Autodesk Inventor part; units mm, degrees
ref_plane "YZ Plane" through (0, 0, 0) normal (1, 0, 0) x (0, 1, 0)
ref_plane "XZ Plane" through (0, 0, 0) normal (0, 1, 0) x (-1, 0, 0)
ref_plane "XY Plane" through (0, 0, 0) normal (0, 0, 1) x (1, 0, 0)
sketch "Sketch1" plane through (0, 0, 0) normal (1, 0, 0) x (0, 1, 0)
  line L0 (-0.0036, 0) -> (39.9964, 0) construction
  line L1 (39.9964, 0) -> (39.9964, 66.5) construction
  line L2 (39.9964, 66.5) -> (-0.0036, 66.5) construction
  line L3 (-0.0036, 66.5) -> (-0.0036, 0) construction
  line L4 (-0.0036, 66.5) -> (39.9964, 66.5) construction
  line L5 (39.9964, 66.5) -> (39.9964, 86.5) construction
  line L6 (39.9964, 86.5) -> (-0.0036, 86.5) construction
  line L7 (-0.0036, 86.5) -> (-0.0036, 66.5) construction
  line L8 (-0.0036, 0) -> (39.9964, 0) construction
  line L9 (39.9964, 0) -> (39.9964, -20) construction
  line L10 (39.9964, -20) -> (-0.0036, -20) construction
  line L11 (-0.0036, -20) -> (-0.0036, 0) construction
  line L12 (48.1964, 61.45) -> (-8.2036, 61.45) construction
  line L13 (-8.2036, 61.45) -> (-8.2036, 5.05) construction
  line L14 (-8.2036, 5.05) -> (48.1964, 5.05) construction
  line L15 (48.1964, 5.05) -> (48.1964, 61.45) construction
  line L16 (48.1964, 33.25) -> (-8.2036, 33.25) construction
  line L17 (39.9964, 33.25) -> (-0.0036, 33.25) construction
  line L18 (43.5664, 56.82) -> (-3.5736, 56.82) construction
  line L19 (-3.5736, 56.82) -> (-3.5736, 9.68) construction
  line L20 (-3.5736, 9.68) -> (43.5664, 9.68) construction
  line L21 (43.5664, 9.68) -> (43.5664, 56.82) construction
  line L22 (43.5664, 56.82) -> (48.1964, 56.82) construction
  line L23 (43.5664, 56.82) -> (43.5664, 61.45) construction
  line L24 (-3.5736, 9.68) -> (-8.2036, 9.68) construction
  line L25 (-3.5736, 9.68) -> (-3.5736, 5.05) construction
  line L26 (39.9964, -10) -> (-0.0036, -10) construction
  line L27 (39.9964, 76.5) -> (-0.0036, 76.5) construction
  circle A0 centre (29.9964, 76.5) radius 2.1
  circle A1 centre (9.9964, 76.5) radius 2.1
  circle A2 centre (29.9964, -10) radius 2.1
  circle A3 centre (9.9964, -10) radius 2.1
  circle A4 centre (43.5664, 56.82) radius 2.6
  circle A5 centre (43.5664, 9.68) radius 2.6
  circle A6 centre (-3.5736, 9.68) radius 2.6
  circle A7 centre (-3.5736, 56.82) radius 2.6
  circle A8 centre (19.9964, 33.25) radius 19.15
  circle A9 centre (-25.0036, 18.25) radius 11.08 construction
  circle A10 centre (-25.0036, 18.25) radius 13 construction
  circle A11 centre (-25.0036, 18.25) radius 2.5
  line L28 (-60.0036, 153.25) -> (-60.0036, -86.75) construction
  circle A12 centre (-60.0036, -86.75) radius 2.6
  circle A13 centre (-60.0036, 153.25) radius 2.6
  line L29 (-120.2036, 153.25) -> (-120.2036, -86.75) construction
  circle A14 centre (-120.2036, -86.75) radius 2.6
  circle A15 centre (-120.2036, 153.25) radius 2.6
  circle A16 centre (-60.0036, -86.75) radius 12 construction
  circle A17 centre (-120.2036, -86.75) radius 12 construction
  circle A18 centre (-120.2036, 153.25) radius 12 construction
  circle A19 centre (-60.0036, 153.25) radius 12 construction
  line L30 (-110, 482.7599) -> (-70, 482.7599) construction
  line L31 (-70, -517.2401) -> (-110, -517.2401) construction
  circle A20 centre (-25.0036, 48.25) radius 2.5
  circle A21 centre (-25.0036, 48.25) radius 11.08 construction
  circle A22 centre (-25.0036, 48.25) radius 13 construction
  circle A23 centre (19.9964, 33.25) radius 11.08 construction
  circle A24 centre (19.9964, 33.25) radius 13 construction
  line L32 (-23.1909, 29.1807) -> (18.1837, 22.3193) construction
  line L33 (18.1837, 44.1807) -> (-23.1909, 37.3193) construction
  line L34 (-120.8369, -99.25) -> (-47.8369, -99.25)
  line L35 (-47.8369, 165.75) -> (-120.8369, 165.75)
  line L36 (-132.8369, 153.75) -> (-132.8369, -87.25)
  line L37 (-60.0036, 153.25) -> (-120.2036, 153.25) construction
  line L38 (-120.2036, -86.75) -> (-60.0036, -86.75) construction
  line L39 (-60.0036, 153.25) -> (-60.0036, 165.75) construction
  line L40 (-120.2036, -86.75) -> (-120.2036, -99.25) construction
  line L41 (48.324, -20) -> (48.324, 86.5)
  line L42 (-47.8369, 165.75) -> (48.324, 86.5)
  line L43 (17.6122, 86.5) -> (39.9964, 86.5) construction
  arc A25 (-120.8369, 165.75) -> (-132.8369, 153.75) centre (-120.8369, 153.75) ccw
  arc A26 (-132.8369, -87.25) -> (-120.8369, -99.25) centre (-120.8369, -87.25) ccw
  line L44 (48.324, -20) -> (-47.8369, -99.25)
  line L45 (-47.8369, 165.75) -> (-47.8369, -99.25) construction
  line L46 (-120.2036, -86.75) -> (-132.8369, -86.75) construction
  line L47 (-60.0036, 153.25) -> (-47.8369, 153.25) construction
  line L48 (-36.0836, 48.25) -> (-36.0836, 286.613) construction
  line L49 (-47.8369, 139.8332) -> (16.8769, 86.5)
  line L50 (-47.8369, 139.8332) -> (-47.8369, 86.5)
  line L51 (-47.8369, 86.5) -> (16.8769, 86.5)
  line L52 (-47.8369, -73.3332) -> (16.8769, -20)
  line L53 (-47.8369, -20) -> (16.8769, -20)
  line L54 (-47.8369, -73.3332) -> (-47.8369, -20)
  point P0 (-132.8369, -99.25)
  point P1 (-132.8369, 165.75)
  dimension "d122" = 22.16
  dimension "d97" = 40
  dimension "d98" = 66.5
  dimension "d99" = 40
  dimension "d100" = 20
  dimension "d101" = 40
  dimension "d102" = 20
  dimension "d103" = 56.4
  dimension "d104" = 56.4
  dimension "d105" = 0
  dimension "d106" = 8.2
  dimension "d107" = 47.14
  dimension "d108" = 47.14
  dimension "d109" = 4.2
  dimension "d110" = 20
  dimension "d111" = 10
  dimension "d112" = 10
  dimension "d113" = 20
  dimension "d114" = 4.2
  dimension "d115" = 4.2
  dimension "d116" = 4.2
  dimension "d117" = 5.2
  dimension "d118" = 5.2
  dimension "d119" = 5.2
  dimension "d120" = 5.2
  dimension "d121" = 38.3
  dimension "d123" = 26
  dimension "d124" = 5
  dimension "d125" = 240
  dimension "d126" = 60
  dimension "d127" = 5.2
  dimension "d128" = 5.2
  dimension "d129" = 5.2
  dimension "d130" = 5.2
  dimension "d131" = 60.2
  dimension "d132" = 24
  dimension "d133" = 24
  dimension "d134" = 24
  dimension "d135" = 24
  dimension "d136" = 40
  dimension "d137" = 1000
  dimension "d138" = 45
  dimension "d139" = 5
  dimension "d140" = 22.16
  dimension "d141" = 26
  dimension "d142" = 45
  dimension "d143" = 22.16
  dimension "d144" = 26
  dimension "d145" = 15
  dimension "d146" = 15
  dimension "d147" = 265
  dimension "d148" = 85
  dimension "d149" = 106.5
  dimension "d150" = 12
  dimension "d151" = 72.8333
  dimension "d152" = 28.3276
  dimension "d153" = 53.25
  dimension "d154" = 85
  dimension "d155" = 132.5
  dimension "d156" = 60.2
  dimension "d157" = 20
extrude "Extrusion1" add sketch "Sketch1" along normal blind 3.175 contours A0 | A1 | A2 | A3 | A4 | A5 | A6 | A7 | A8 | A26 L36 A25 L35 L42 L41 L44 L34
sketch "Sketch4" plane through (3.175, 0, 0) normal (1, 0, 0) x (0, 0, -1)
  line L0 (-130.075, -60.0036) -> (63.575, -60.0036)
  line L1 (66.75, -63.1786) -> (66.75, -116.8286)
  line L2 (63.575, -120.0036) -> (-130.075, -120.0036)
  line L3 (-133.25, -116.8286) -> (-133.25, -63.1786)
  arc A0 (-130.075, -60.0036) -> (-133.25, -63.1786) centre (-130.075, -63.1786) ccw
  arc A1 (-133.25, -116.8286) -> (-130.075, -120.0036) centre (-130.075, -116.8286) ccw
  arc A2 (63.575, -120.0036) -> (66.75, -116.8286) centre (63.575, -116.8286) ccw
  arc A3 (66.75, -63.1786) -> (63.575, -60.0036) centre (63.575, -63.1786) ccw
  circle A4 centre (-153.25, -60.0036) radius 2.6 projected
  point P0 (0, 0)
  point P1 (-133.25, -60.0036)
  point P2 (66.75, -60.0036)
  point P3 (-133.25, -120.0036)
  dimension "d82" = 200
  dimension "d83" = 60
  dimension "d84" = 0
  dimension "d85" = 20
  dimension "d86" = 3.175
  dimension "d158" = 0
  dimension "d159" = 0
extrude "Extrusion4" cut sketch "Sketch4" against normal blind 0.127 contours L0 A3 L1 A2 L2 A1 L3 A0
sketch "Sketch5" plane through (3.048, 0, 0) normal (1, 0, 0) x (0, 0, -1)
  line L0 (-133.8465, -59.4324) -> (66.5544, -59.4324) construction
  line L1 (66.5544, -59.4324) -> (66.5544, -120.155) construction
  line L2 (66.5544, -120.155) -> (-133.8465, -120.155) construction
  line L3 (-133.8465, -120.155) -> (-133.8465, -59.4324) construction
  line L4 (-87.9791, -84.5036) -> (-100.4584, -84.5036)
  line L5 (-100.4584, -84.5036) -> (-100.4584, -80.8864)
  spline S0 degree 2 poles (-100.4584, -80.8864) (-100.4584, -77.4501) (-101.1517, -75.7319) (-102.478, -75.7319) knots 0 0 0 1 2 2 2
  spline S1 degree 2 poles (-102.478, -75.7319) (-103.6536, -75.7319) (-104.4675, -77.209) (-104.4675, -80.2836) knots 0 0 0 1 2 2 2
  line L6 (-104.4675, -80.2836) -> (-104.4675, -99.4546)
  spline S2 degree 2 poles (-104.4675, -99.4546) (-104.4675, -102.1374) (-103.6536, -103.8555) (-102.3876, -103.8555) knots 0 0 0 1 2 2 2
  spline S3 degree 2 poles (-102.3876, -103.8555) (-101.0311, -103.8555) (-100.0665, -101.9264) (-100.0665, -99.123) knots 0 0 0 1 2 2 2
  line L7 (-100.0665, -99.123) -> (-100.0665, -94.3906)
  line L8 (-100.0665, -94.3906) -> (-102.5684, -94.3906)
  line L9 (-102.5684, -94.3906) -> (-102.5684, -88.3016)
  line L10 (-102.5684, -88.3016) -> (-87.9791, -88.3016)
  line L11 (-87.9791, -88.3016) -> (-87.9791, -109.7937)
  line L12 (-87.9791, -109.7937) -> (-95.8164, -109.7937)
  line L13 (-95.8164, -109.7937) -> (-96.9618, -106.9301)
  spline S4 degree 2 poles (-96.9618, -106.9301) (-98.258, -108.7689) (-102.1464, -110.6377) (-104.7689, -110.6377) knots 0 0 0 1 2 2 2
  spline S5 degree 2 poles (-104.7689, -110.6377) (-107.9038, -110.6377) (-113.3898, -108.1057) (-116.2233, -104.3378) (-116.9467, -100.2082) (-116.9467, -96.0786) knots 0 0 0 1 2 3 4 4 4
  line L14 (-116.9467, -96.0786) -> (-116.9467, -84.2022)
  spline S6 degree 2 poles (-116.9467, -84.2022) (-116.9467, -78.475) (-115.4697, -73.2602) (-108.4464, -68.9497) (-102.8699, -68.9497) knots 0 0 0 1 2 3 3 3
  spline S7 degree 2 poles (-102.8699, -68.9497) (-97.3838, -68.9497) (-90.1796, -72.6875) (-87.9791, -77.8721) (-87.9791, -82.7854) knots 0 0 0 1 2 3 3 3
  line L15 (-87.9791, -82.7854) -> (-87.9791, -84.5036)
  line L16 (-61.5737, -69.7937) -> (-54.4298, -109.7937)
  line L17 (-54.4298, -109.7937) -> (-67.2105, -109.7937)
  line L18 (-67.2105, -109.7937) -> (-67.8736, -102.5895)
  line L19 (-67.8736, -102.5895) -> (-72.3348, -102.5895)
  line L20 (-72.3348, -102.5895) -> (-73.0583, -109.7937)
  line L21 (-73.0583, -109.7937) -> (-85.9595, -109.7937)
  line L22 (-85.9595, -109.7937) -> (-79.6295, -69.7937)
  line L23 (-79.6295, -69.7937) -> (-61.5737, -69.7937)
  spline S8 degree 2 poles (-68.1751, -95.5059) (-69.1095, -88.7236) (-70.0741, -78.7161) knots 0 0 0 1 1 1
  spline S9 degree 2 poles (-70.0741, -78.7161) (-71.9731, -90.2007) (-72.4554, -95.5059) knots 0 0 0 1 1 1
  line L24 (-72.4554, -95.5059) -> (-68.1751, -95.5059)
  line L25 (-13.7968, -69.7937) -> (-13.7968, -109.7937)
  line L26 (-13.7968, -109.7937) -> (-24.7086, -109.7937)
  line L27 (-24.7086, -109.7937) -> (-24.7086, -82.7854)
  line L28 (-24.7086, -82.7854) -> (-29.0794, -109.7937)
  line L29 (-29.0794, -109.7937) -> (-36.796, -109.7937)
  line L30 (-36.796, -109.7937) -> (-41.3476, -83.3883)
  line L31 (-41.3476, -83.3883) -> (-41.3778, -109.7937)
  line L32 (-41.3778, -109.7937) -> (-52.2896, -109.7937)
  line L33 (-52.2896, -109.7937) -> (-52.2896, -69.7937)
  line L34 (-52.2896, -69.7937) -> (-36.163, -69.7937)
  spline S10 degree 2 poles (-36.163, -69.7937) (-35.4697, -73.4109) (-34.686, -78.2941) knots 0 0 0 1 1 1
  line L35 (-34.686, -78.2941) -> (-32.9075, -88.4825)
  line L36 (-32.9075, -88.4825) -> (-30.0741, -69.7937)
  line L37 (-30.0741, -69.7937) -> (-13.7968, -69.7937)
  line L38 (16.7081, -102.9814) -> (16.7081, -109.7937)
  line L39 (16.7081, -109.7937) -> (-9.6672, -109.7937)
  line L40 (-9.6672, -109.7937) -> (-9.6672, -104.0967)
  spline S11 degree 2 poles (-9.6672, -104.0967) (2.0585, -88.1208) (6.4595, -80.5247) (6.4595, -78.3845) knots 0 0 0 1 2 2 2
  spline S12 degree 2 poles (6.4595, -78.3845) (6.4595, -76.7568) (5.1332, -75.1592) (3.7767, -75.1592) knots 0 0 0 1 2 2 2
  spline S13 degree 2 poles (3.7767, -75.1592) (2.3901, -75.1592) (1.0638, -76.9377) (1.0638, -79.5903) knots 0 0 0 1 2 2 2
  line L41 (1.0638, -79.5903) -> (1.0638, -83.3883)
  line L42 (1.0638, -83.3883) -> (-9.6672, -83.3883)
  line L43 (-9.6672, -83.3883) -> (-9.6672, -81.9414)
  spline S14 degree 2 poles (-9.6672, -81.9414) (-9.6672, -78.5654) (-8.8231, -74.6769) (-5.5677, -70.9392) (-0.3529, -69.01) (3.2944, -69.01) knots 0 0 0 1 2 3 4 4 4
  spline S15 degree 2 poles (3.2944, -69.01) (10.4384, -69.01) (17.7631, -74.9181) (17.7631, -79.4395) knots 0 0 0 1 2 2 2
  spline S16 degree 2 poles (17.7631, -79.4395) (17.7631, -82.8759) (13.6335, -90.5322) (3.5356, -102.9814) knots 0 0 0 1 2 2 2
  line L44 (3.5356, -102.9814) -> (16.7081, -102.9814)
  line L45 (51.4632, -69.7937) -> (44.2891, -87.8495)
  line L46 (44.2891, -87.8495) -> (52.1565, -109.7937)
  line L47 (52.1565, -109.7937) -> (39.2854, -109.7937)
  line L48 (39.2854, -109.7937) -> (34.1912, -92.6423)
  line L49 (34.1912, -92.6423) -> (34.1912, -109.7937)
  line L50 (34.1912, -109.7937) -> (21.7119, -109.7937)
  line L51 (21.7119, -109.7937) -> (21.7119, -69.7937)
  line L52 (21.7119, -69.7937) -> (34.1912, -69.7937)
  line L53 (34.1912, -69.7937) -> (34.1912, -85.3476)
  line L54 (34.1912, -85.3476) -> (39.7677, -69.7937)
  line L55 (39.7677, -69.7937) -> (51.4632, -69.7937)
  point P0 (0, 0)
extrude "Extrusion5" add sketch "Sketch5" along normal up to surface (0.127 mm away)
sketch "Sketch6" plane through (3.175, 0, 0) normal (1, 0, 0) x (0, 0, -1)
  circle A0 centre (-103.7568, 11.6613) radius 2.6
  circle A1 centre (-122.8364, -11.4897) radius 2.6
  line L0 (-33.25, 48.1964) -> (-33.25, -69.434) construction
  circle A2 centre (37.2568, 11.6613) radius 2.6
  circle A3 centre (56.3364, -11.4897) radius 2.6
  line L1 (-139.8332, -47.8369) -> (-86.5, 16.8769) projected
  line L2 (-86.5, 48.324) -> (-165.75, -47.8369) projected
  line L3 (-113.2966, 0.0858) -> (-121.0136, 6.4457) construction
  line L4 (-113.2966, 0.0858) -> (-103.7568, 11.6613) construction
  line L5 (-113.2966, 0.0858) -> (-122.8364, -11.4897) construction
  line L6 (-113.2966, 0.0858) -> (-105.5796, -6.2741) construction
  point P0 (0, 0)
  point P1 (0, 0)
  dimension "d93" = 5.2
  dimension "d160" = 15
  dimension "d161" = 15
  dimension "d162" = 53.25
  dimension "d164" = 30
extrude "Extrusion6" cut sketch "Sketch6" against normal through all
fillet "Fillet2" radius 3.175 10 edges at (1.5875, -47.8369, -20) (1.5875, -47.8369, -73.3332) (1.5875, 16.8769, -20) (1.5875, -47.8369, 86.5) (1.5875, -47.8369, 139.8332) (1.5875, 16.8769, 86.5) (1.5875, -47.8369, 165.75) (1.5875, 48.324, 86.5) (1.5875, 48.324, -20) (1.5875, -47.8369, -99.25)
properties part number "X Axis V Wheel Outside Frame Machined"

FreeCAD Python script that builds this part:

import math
import FreeCAD as App
import Part
import Sketcher
Q = App.Units.Quantity


def edges_at(feature, points):
    """Names of the edges that pass closest to the given points."""
    edges = feature.Shape.Edges
    near = lambda p: min(range(len(edges)), key=lambda i: edges[i].distToShape(Part.Vertex(*p))[0])
    return sorted({f"Edge{near(p) + 1}" for p in points})

doc = App.newDocument("Part")
body = doc.addObject("PartDesign::Body", "Body")

# Sketch on YZ plane
sketch1 = body.newObject("Sketcher::SketchObject", "Sketch")
sketch1.AttachmentSupport = (doc.getObject("YZ_Plane"), [""])
sketch1.MapMode = "FlatFace"
sketch1.addGeometry(Part.ArcOfCircle(Part.Circle(App.Vector(-120.8369, -87.25, 0), App.Vector(0, 0, 1), 12), math.radians(180), math.radians(270)), False)
sketch1.addGeometry(Part.LineSegment(App.Vector(-120.8369, -99.25, 0), App.Vector(-47.8369, -99.25, 0)), False)
sketch1.addGeometry(Part.LineSegment(App.Vector(-47.8369, -99.25, 0), App.Vector(48.324, -20, 0)), False)
sketch1.addGeometry(Part.LineSegment(App.Vector(48.324, -20, 0), App.Vector(48.324, 86.5, 0)), False)
sketch1.addGeometry(Part.LineSegment(App.Vector(48.324, 86.5, 0), App.Vector(-47.8369, 165.75, 0)), False)
sketch1.addGeometry(Part.LineSegment(App.Vector(-47.8369, 165.75, 0), App.Vector(-120.8369, 165.75, 0)), False)
sketch1.addGeometry(Part.ArcOfCircle(Part.Circle(App.Vector(-120.8369, 153.75, 0), App.Vector(0, 0, 1), 12), math.radians(90), math.radians(180)), False)
sketch1.addGeometry(Part.LineSegment(App.Vector(-132.8369, 153.75, 0), App.Vector(-132.8369, -87.25, 0)), False)
sketch1.addGeometry(Part.Circle(App.Vector(-120.2036, -86.75, 0), App.Vector(0, 0, 1), 2.6), False)
sketch1.addGeometry(Part.Circle(App.Vector(-60.0036, -86.75, 0), App.Vector(0, 0, 1), 2.6), False)
sketch1.addGeometry(Part.LineSegment(App.Vector(16.8769, -20, 0), App.Vector(-47.8369, -73.3332, 0)), False)
sketch1.addGeometry(Part.LineSegment(App.Vector(-47.8369, -73.3332, 0), App.Vector(-47.8369, -20, 0)), False)
sketch1.addGeometry(Part.LineSegment(App.Vector(-47.8369, -20, 0), App.Vector(16.8769, -20, 0)), False)
sketch1.addGeometry(Part.Circle(App.Vector(-25.0036, 18.25, 0), App.Vector(0, 0, 1), 2.5), False)
sketch1.addGeometry(Part.Circle(App.Vector(-120.2036, 153.25, 0), App.Vector(0, 0, 1), 2.6), False)
sketch1.addGeometry(Part.Circle(App.Vector(-60.0036, 153.25, 0), App.Vector(0, 0, 1), 2.6), False)
sketch1.addGeometry(Part.Circle(App.Vector(-25.0036, 48.25, 0), App.Vector(0, 0, 1), 2.5), False)
sketch1.addGeometry(Part.LineSegment(App.Vector(-47.8369, 139.8332, 0), App.Vector(16.8769, 86.5, 0)), False)
sketch1.addGeometry(Part.LineSegment(App.Vector(16.8769, 86.5, 0), App.Vector(-47.8369, 86.5, 0)), False)
sketch1.addGeometry(Part.LineSegment(App.Vector(-47.8369, 86.5, 0), App.Vector(-47.8369, 139.8332, 0)), False)
sketch1.addConstraint(Sketcher.Constraint("Tangent", 0, 2, 1, 1))
sketch1.addConstraint(Sketcher.Constraint("Coincident", 1, 2, 2, 1))
sketch1.addConstraint(Sketcher.Constraint("Coincident", 2, 2, 3, 1))
sketch1.addConstraint(Sketcher.Constraint("Coincident", 3, 2, 4, 1))
sketch1.addConstraint(Sketcher.Constraint("Coincident", 4, 2, 5, 1))
sketch1.addConstraint(Sketcher.Constraint("Tangent", 5, 2, 6, 1))
sketch1.addConstraint(Sketcher.Constraint("Tangent", 6, 2, 7, 1))
sketch1.addConstraint(Sketcher.Constraint("Tangent", 7, 2, 0, 1))
sketch1.addConstraint(Sketcher.Constraint("Coincident", 10, 2, 11, 1))
sketch1.addConstraint(Sketcher.Constraint("Coincident", 11, 2, 12, 1))
sketch1.addConstraint(Sketcher.Constraint("Coincident", 12, 2, 10, 1))
sketch1.addConstraint(Sketcher.Constraint("Coincident", 17, 2, 18, 1))
sketch1.addConstraint(Sketcher.Constraint("Coincident", 18, 2, 19, 1))
sketch1.addConstraint(Sketcher.Constraint("Coincident", 19, 2, 17, 1))
sketch1.addConstraint(Sketcher.Constraint("Horizontal", 1))
sketch1.addConstraint(Sketcher.Constraint("Vertical", 3))
sketch1.addConstraint(Sketcher.Constraint("Horizontal", 5))
sketch1.addConstraint(Sketcher.Constraint("Vertical", 7))
sketch1.addConstraint(Sketcher.Constraint("Vertical", 11))
sketch1.addConstraint(Sketcher.Constraint("Horizontal", 12))
sketch1.addConstraint(Sketcher.Constraint("Horizontal", 18))
sketch1.addConstraint(Sketcher.Constraint("Vertical", 19))
sketch1.addConstraint(Sketcher.Constraint("Equal", 0, 6))
sketch1.addConstraint(Sketcher.Constraint("Equal", 8, 9))
sketch1.addConstraint(Sketcher.Constraint("Equal", 9, 14))
sketch1.addConstraint(Sketcher.Constraint("Equal", 14, 15))
sketch1.addConstraint(Sketcher.Constraint("Equal", 13, 16))
sketch1.addConstraint(Sketcher.Constraint("Parallel", 2, 10))
sketch1.addConstraint(Sketcher.Constraint("Parallel", 4, 17))
sketch1.addConstraint(Sketcher.Constraint("Horizontal", 8, 3, 9, 3))
sketch1.addConstraint(Sketcher.Constraint("Horizontal", 14, 3, 15, 3))
sketch1.addConstraint(Sketcher.Constraint("Horizontal", 2, 2, 11, 2))
sketch1.addConstraint(Sketcher.Constraint("Horizontal", 3, 2, 17, 2))
sketch1.addConstraint(Sketcher.Constraint("Vertical", 8, 3, 14, 3))
sketch1.addConstraint(Sketcher.Constraint("Vertical", 9, 3, 15, 3))
sketch1.addConstraint(Sketcher.Constraint("Vertical", 13, 3, 16, 3))
sketch1.addConstraint(Sketcher.Constraint("Vertical", 1, 2, 4, 2))
sketch1.addConstraint(Sketcher.Constraint("Vertical", 4, 2, 10, 2))
sketch1.addConstraint(Sketcher.Constraint("Vertical", 12, 2, 17, 2))
sketch1.addConstraint(Sketcher.Constraint("Vertical", 11, 2, 18, 2))
sketch1.addConstraint(Sketcher.Constraint("Equal", 11, 19))
sketch1.addConstraint(Sketcher.Constraint("Diameter", 13, Q("5 mm")))
sketch1.addConstraint(Sketcher.Constraint("Radius", 0, Q("12 mm")))
sketch1.addConstraint(Sketcher.Constraint("Diameter", 8, Q("5.2 mm")))
sketch1.addConstraint(Sketcher.Constraint("DistanceY", 3, 1, 3, 2, Q("106.5 mm")))
sketch1.addConstraint(Sketcher.Constraint("DistanceY", 2, 2, -1, 1, Q("20 mm")))
sketch1.addConstraint(Sketcher.Constraint("DistanceY", 8, 3, 14, 3, Q("240 mm")))
sketch1.addConstraint(Sketcher.Constraint("DistanceX", 6, 2, 4, 2, Q("85 mm")))
sketch1.addConstraint(Sketcher.Constraint("DistanceX", 8, 3, 9, 3, Q("60.2 mm")))
sketch1.addConstraint(Sketcher.Constraint("DistanceY", 7, 2, 7, 1, Q("241 mm")))
sketch1.addConstraint(Sketcher.Constraint("DistanceX", 9, 3, 13, 3, Q("35 mm")))
sketch1.addConstraint(Sketcher.Constraint("DistanceY", 9, 3, 13, 3, Q("105 mm")))
sketch1.addConstraint(Sketcher.Constraint("DistanceY", 13, 3, 16, 3, Q("30 mm")))
sketch1.addConstraint(Sketcher.Constraint("DistanceY", 0, 3, 8, 3, Q("0.5 mm")))
sketch1.addConstraint(Sketcher.Constraint("DistanceX", 6, 2, 15, 3, Q("72.8333 mm")))
sketch1.addConstraint(Sketcher.Constraint("DistanceX", 12, 1, 12, 2, Q("64.7138 mm")))
sketch1.addConstraint(Sketcher.Constraint("DistanceY", 11, 1, 11, 2, Q("53.3332 mm")))
sketch1.addConstraint(Sketcher.Constraint("DistanceX", 0, 3, -1, 1, Q("120.837 mm")))
pad1 = body.newObject("PartDesign::Pad", "Pad")
pad1.Profile = sketch1
pad1.Length = 3.175

# Sketch on YZ plane
sketch2 = body.newObject("Sketcher::SketchObject", "Sketch001")
sketch2.AttachmentSupport = (doc.getObject("YZ_Plane"), [""])
sketch2.MapMode = "FlatFace"
sketch2.AttachmentOffset = App.Placement(App.Vector(0, 0, 3.175), App.Rotation())
sketch2.addGeometry(Part.LineSegment(App.Vector(-60.0036, -63.575, 0), App.Vector(-60.0036, 130.075, 0)), False)
sketch2.addGeometry(Part.ArcOfCircle(Part.Circle(App.Vector(-63.1786, 130.075, 0), App.Vector(0, 0, 1), 3.175), math.radians(0), math.radians(90)), False)
sketch2.addGeometry(Part.LineSegment(App.Vector(-63.1786, 133.25, 0), App.Vector(-116.8286, 133.25, 0)), False)
sketch2.addGeometry(Part.ArcOfCircle(Part.Circle(App.Vector(-116.8286, 130.075, 0), App.Vector(0, 0, 1), 3.175), math.radians(90), math.radians(180)), False)
sketch2.addGeometry(Part.LineSegment(App.Vector(-120.0036, 130.075, 0), App.Vector(-120.0036, -63.575, 0)), False)
sketch2.addGeometry(Part.ArcOfCircle(Part.Circle(App.Vector(-116.8286, -63.575, 0), App.Vector(0, 0, 1), 3.175), math.radians(180), math.radians(270)), False)
sketch2.addGeometry(Part.LineSegment(App.Vector(-116.8286, -66.75, 0), App.Vector(-63.1786, -66.75, 0)), False)
sketch2.addGeometry(Part.ArcOfCircle(Part.Circle(App.Vector(-63.1786, -63.575, 0), App.Vector(0, 0, 1), 3.175), math.radians(-90), math.radians(0)), False)
sketch2.addConstraint(Sketcher.Constraint("Tangent", 0, 2, 1, 1))
sketch2.addConstraint(Sketcher.Constraint("Tangent", 1, 2, 2, 1))
sketch2.addConstraint(Sketcher.Constraint("Tangent", 2, 2, 3, 1))
sketch2.addConstraint(Sketcher.Constraint("Tangent", 3, 2, 4, 1))
sketch2.addConstraint(Sketcher.Constraint("Tangent", 4, 2, 5, 1))
sketch2.addConstraint(Sketcher.Constraint("Tangent", 5, 2, 6, 1))
sketch2.addConstraint(Sketcher.Constraint("Tangent", 6, 2, 7, 1))
sketch2.addConstraint(Sketcher.Constraint("Tangent", 7, 2, 0, 1))
sketch2.addConstraint(Sketcher.Constraint("Vertical", 0))
sketch2.addConstraint(Sketcher.Constraint("Horizontal", 2))
sketch2.addConstraint(Sketcher.Constraint("Vertical", 4))
sketch2.addConstraint(Sketcher.Constraint("Horizontal", 6))
sketch2.addConstraint(Sketcher.Constraint("Equal", 1, 3))
sketch2.addConstraint(Sketcher.Constraint("Equal", 3, 5))
sketch2.addConstraint(Sketcher.Constraint("Equal", 5, 7))
sketch2.addConstraint(Sketcher.Constraint("Radius", 1, Q("3.175 mm")))
sketch2.addConstraint(Sketcher.Constraint("DistanceX", 3, 2, 0, 2, Q("60 mm")))
sketch2.addConstraint(Sketcher.Constraint("DistanceY", 0, 1, 0, 2, Q("193.65 mm")))
sketch2.addConstraint(Sketcher.Constraint("DistanceY", -1, 1, 1, 2, Q("133.25 mm")))
sketch2.addConstraint(Sketcher.Constraint("DistanceX", 1, 3, -1, 1, Q("63.1786 mm")))
pocket1 = body.newObject("PartDesign::Pocket", "Pocket")
pocket1.Profile = sketch2
pocket1.Length = 0.127

# Sketch on YZ plane
sketch3 = body.newObject("Sketcher::SketchObject", "Sketch002")
sketch3.AttachmentSupport = (doc.getObject("YZ_Plane"), [""])
sketch3.MapMode = "FlatFace"
sketch3.AttachmentOffset = App.Placement(App.Vector(0, 0, 3.048), App.Rotation())
sketch3.addGeometry(Part.LineSegment(App.Vector(-84.5036, 100.4584, 0), App.Vector(-84.5036, 87.9791, 0)), False)
sketch3.addGeometry(Part.LineSegment(App.Vector(-84.5036, 87.9791, 0), App.Vector(-82.7854, 87.9791, 0)), False)
sketch3.addGeometry(Part.BSplineCurve([App.Vector(-68.9497, 102.8699, 0), App.Vector(-68.9497, 97.3838, 0), App.Vector(-72.6875, 90.1796, 0), App.Vector(-77.8721, 87.9791, 0), App.Vector(-82.7854, 87.9791, 0)], [3, 1, 1, 3], [0, 1, 2, 3], False, 2, [1, 1, 1, 1, 1], False), False)
sketch3.addGeometry(Part.BSplineCurve([App.Vector(-84.2022, 116.9467, 0), App.Vector(-78.475, 116.9467, 0), App.Vector(-73.2602, 115.4697, 0), App.Vector(-68.9497, 108.4464, 0), App.Vector(-68.9497, 102.8699, 0)], [3, 1, 1, 3], [0, 1, 2, 3], False, 2, [1, 1, 1, 1, 1], False), False)
sketch3.addGeometry(Part.LineSegment(App.Vector(-84.2022, 116.9467, 0), App.Vector(-96.0786, 116.9467, 0)), False)
sketch3.addGeometry(Part.BSplineCurve([App.Vector(-110.6377, 104.7689, 0), App.Vector(-110.6377, 107.9038, 0), App.Vector(-108.1057, 113.3898, 0), App.Vector(-104.3378, 116.2233, 0), App.Vector(-100.2082, 116.9467, 0), App.Vector(-96.0786, 116.9467, 0)], [3, 1, 1, 1, 3], [0, 1, 2, 3, 4], False, 2, [1, 1, 1, 1, 1, 1], False), False)
sketch3.addGeometry(Part.BSplineCurve([App.Vector(-106.9301, 96.9618, 0), App.Vector(-108.7689, 98.258, 0), App.Vector(-110.6377, 102.1464, 0), App.Vector(-110.6377, 104.7689, 0)], [3, 1, 3], [0, 1, 2], False, 2, [1, 1, 1, 1], False), False)
sketch3.addGeometry(Part.LineSegment(App.Vector(-106.9301, 96.9618, 0), App.Vector(-109.7937, 95.8164, 0)), False)
sketch3.addGeometry(Part.LineSegment(App.Vector(-109.7937, 95.8164, 0), App.Vector(-109.7937, 87.9791, 0)), False)
sketch3.addGeometry(Part.LineSegment(App.Vector(-109.7937, 87.9791, 0), App.Vector(-88.3016, 87.9791, 0)), False)
sketch3.addGeometry(Part.LineSegment(App.Vector(-88.3016, 87.9791, 0), App.Vector(-88.3016, 102.5684, 0)), False)
sketch3.addGeometry(Part.LineSegment(App.Vector(-88.3016, 102.5684, 0), App.Vector(-94.3906, 102.5684, 0)), False)
sketch3.addGeometry(Part.LineSegment(App.Vector(-94.3906, 102.5684, 0), App.Vector(-94.3906, 100.0665, 0)), False)
sketch3.addGeometry(Part.LineSegment(App.Vector(-94.3906, 100.0665, 0), App.Vector(-99.123, 100.0665, 0)), False)
sketch3.addGeometry(Part.BSplineCurve([App.Vector(-103.8555, 102.3876, 0), App.Vector(-103.8555, 101.0311, 0), App.Vector(-101.9264, 100.0665, 0), App.Vector(-99.123, 100.0665, 0)], [3, 1, 3], [0, 1, 2], False, 2, [1, 1, 1, 1], False), False)
sketch3.addGeometry(Part.BSplineCurve([App.Vector(-99.4546, 104.4675, 0), App.Vector(-102.1374, 104.4675, 0), App.Vector(-103.8555, 103.6536, 0), App.Vector(-103.8555, 102.3876, 0)], [3, 1, 3], [0, 1, 2], False, 2, [1, 1, 1, 1], False), False)
sketch3.addGeometry(Part.LineSegment(App.Vector(-99.4546, 104.4675, 0), App.Vector(-80.2836, 104.4675, 0)), False)
sketch3.addGeometry(Part.BSplineCurve([App.Vector(-75.7319, 102.478, 0), App.Vector(-75.7319, 103.6536, 0), App.Vector(-77.209, 104.4675, 0), App.Vector(-80.2836, 104.4675, 0)], [3, 1, 3], [0, 1, 2], False, 2, [1, 1, 1, 1], False), False)
sketch3.addGeometry(Part.BSplineCurve([App.Vector(-80.8864, 100.4584, 0), App.Vector(-77.4501, 100.4584, 0), App.Vector(-75.7319, 101.1517, 0), App.Vector(-75.7319, 102.478, 0)], [3, 1, 3], [0, 1, 2], False, 2, [1, 1, 1, 1], False), False)
sketch3.addGeometry(Part.LineSegment(App.Vector(-80.8864, 100.4584, 0), App.Vector(-84.5036, 100.4584, 0)), False)
sketch3.addGeometry(Part.LineSegment(App.Vector(-109.7937, 54.4298, 0), App.Vector(-69.7937, 61.5737, 0)), False)
sketch3.addGeometry(Part.LineSegment(App.Vector(-69.7937, 61.5737, 0), App.Vector(-69.7937, 79.6295, 0)), False)
sketch3.addGeometry(Part.LineSegment(App.Vector(-69.7937, 79.6295, 0), App.Vector(-109.7937, 85.9595, 0)), False)
sketch3.addGeometry(Part.LineSegment(App.Vector(-109.7937, 85.9595, 0), App.Vector(-109.7937, 73.0583, 0)), False)
sketch3.addGeometry(Part.LineSegment(App.Vector(-109.7937, 73.0583, 0), App.Vector(-102.5895, 72.3348, 0)), False)
sketch3.addGeometry(Part.LineSegment(App.Vector(-102.5895, 72.3348, 0), App.Vector(-102.5895, 67.8736, 0)), False)
sketch3.addGeometry(Part.LineSegment(App.Vector(-102.5895, 67.8736, 0), App.Vector(-109.7937, 67.2105, 0)), False)
sketch3.addGeometry(Part.LineSegment(App.Vector(-109.7937, 67.2105, 0), App.Vector(-109.7937, 54.4298, 0)), False)
sketch3.addGeometry(Part.BSplineCurve([App.Vector(-95.5059, 68.1751, 0), App.Vector(-88.7236, 69.1095, 0), App.Vector(-78.7161, 70.0741, 0)], [3, 3], [0, 1], False, 2, [1, 1, 1], False), False)
sketch3.addGeometry(Part.LineSegment(App.Vector(-95.5059, 68.1751, 0), App.Vector(-95.5059, 72.4554, 0)), False)
sketch3.addGeometry(Part.BSplineCurve([App.Vector(-78.7161, 70.0741, 0), App.Vector(-90.2007, 71.9731, 0), App.Vector(-95.5059, 72.4554, 0)], [3, 3], [0, 1], False, 2, [1, 1, 1], False), False)
sketch3.addGeometry(Part.LineSegment(App.Vector(-109.7937, 13.7968, 0), App.Vector(-69.7937, 13.7968, 0)), False)
sketch3.addGeometry(Part.LineSegment(App.Vector(-69.7937, 13.7968, 0), App.Vector(-69.7937, 30.0741, 0)), False)
sketch3.addGeometry(Part.LineSegment(App.Vector(-69.7937, 30.0741, 0), App.Vector(-88.4825, 32.9075, 0)), False)
sketch3.addGeometry(Part.LineSegment(App.Vector(-88.4825, 32.9075, 0), App.Vector(-78.2941, 34.686, 0)), False)
sketch3.addGeometry(Part.BSplineCurve([App.Vector(-69.7937, 36.163, 0), App.Vector(-73.4109, 35.4697, 0), App.Vector(-78.2941, 34.686, 0)], [3, 3], [0, 1], False, 2, [1, 1, 1], False), False)
sketch3.addGeometry(Part.LineSegment(App.Vector(-69.7937, 36.163, 0), App.Vector(-69.7937, 52.2896, 0)), False)
sketch3.addGeometry(Part.LineSegment(App.Vector(-69.7937, 52.2896, 0), App.Vector(-109.7937, 52.2896, 0)), False)
sketch3.addGeometry(Part.LineSegment(App.Vector(-109.7937, 52.2896, 0), App.Vector(-109.7937, 41.3778, 0)), False)
sketch3.addGeometry(Part.LineSegment(App.Vector(-109.7937, 41.3778, 0), App.Vector(-83.3883, 41.3476, 0)), False)
sketch3.addGeometry(Part.LineSegment(App.Vector(-83.3883, 41.3476, 0), App.Vector(-109.7937, 36.796, 0)), False)
sketch3.addGeometry(Part.LineSegment(App.Vector(-109.7937, 36.796, 0), App.Vector(-109.7937, 29.0794, 0)), False)
sketch3.addGeometry(Part.LineSegment(App.Vector(-109.7937, 29.0794, 0), App.Vector(-82.7854, 24.7086, 0)), False)
sketch3.addGeometry(Part.LineSegment(App.Vector(-82.7854, 24.7086, 0), App.Vector(-109.7937, 24.7086, 0)), False)
sketch3.addGeometry(Part.LineSegment(App.Vector(-109.7937, 24.7086, 0), App.Vector(-109.7937, 13.7968, 0)), False)
sketch3.addGeometry(Part.LineSegment(App.Vector(-109.7937, -16.7081, 0), App.Vector(-102.9814, -16.7081, 0)), False)
sketch3.addGeometry(Part.LineSegment(App.Vector(-102.9814, -16.7081, 0), App.Vector(-102.9814, -3.5356, 0)), False)
sketch3.addGeometry(Part.BSplineCurve([App.Vector(-79.4395, -17.7631, 0), App.Vector(-82.8759, -17.7631, 0), App.Vector(-90.5322, -13.6335, 0), App.Vector(-102.9814, -3.5356, 0)], [3, 1, 3], [0, 1, 2], False, 2, [1, 1, 1, 1], False), False)
sketch3.addGeometry(Part.BSplineCurve([App.Vector(-69.01, -3.2944, 0), App.Vector(-69.01, -10.4384, 0), App.Vector(-74.9181, -17.7631, 0), App.Vector(-79.4395, -17.7631, 0)], [3, 1, 3], [0, 1, 2], False, 2, [1, 1, 1, 1], False), False)
sketch3.addGeometry(Part.BSplineCurve([App.Vector(-81.9414, 9.6672, 0), App.Vector(-78.5654, 9.6672, 0), App.Vector(-74.6769, 8.8231, 0), App.Vector(-70.9392, 5.5677, 0), App.Vector(-69.01, 0.3529, 0), App.Vector(-69.01, -3.2944, 0)], [3, 1, 1, 1, 3], [0, 1, 2, 3, 4], False, 2, [1, 1, 1, 1, 1, 1], False), False)
sketch3.addGeometry(Part.LineSegment(App.Vector(-81.9414, 9.6672, 0), App.Vector(-83.3883, 9.6672, 0)), False)
sketch3.addGeometry(Part.LineSegment(App.Vector(-83.3883, 9.6672, 0), App.Vector(-83.3883, -1.0638, 0)), False)
sketch3.addGeometry(Part.LineSegment(App.Vector(-83.3883, -1.0638, 0), App.Vector(-79.5903, -1.0638, 0)), False)
sketch3.addGeometry(Part.BSplineCurve([App.Vector(-75.1592, -3.7767, 0), App.Vector(-75.1592, -2.3901, 0), App.Vector(-76.9377, -1.0638, 0), App.Vector(-79.5903, -1.0638, 0)], [3, 1, 3], [0, 1, 2], False, 2, [1, 1, 1, 1], False), False)
sketch3.addGeometry(Part.BSplineCurve([App.Vector(-78.3845, -6.4595, 0), App.Vector(-76.7568, -6.4595, 0), App.Vector(-75.1592, -5.1332, 0), App.Vector(-75.1592, -3.7767, 0)], [3, 1, 3], [0, 1, 2], False, 2, [1, 1, 1, 1], False), False)
sketch3.addGeometry(Part.BSplineCurve([App.Vector(-104.0967, 9.6672, 0), App.Vector(-88.1208, -2.0585, 0), App.Vector(-80.5247, -6.4595, 0), App.Vector(-78.3845, -6.4595, 0)], [3, 1, 3], [0, 1, 2], False, 2, [1, 1, 1, 1], False), False)
sketch3.addGeometry(Part.LineSegment(App.Vector(-104.0967, 9.6672, 0), App.Vector(-109.7937, 9.6672, 0)), False)
sketch3.addGeometry(Part.LineSegment(App.Vector(-109.7937, 9.6672, 0), App.Vector(-109.7937, -16.7081, 0)), False)
sketch3.addGeometry(Part.LineSegment(App.Vector(-87.8495, -44.2891, 0), App.Vector(-69.7937, -51.4632, 0)), False)
sketch3.addGeometry(Part.LineSegment(App.Vector(-69.7937, -51.4632, 0), App.Vector(-69.7937, -39.7677, 0)), False)
sketch3.addGeometry(Part.LineSegment(App.Vector(-69.7937, -39.7677, 0), App.Vector(-85.3476, -34.1912, 0)), False)
sketch3.addGeometry(Part.LineSegment(App.Vector(-85.3476, -34.1912, 0), App.Vector(-69.7937, -34.1912, 0)), False)
sketch3.addGeometry(Part.LineSegment(App.Vector(-69.7937, -34.1912, 0), App.Vector(-69.7937, -21.7119, 0)), False)
sketch3.addGeometry(Part.LineSegment(App.Vector(-69.7937, -21.7119, 0), App.Vector(-109.7937, -21.7119, 0)), False)
sketch3.addGeometry(Part.LineSegment(App.Vector(-109.7937, -21.7119, 0), App.Vector(-109.7937, -34.1912, 0)), False)
sketch3.addGeometry(Part.LineSegment(App.Vector(-109.7937, -34.1912, 0), App.Vector(-92.6423, -34.1912, 0)), False)
sketch3.addGeometry(Part.LineSegment(App.Vector(-92.6423, -34.1912, 0), App.Vector(-109.7937, -39.2854, 0)), False)
sketch3.addGeometry(Part.LineSegment(App.Vector(-109.7937, -39.2854, 0), App.Vector(-109.7937, -52.1565, 0)), False)
sketch3.addGeometry(Part.LineSegment(App.Vector(-109.7937, -52.1565, 0), App.Vector(-87.8495, -44.2891, 0)), False)
sketch3.addConstraint(Sketcher.Constraint("Block", 2))
sketch3.addConstraint(Sketcher.Constraint("Block", 3))
sketch3.addConstraint(Sketcher.Constraint("Block", 5))
sketch3.addConstraint(Sketcher.Constraint("Block", 6))
sketch3.addConstraint(Sketcher.Constraint("Block", 14))
sketch3.addConstraint(Sketcher.Constraint("Block", 15))
sketch3.addConstraint(Sketcher.Constraint("Block", 17))
sketch3.addConstraint(Sketcher.Constraint("Block", 18))
sketch3.addConstraint(Sketcher.Constraint("Block", 28))
sketch3.addConstraint(Sketcher.Constraint("Block", 30))
sketch3.addConstraint(Sketcher.Constraint("Block", 35))
sketch3.addConstraint(Sketcher.Constraint("Block", 47))
sketch3.addConstraint(Sketcher.Constraint("Block", 48))
sketch3.addConstraint(Sketcher.Constraint("Block", 49))
sketch3.addConstraint(Sketcher.Constraint("Block", 53))
sketch3.addConstraint(Sketcher.Constraint("Block", 54))
sketch3.addConstraint(Sketcher.Constraint("Block", 55))
sketch3.addConstraint(Sketcher.Constraint("Coincident", 0, 2, 1, 1))
sketch3.addConstraint(Sketcher.Constraint("Coincident", 1, 2, 2, 2))
sketch3.addConstraint(Sketcher.Constraint("Coincident", 3, 1, 4, 1))
sketch3.addConstraint(Sketcher.Constraint("Coincident", 4, 2, 5, 2))
sketch3.addConstraint(Sketcher.Constraint("Coincident", 6, 1, 7, 1))
sketch3.addConstraint(Sketcher.Constraint("Coincident", 7, 2, 8, 1))
sketch3.addConstraint(Sketcher.Constraint("Coincident", 8, 2, 9, 1))
sketch3.addConstraint(Sketcher.Constraint("Coincident", 9, 2, 10, 1))
sketch3.addConstraint(Sketcher.Constraint("Coincident", 10, 2, 11, 1))
sketch3.addConstraint(Sketcher.Constraint("Coincident", 11, 2, 12, 1))
sketch3.addConstraint(Sketcher.Constraint("Coincident", 12, 2, 13, 1))
sketch3.addConstraint(Sketcher.Constraint("Coincident", 13, 2, 14, 2))
sketch3.addConstraint(Sketcher.Constraint("Coincident", 15, 1, 16, 1))
sketch3.addConstraint(Sketcher.Constraint("Coincident", 16, 2, 17, 2))
sketch3.addConstraint(Sketcher.Constraint("Coincident", 18, 1, 19, 1))
sketch3.addConstraint(Sketcher.Constraint("Coincident", 19, 2, 0, 1))
sketch3.addConstraint(Sketcher.Constraint("Coincident", 20, 2, 21, 1))
sketch3.addConstraint(Sketcher.Constraint("Coincident", 21, 2, 22, 1))
sketch3.addConstraint(Sketcher.Constraint("Coincident", 22, 2, 23, 1))
sketch3.addConstraint(Sketcher.Constraint("Coincident", 23, 2, 24, 1))
sketch3.addConstraint(Sketcher.Constraint("Coincident", 24, 2, 25, 1))
sketch3.addConstraint(Sketcher.Constraint("Coincident", 25, 2, 26, 1))
sketch3.addConstraint(Sketcher.Constraint("Coincident", 26, 2, 27, 1))
sketch3.addConstraint(Sketcher.Constraint("Coincident", 27, 2, 20, 1))
sketch3.addConstraint(Sketcher.Constraint("Coincident", 28, 1, 29, 1))
sketch3.addConstraint(Sketcher.Constraint("Coincident", 29, 2, 30, 2))
sketch3.addConstraint(Sketcher.Constraint("Coincident", 31, 2, 32, 1))
sketch3.addConstraint(Sketcher.Constraint("Coincident", 32, 2, 33, 1))
sketch3.addConstraint(Sketcher.Constraint("Coincident", 33, 2, 34, 1))
sketch3.addConstraint(Sketcher.Constraint("Coincident", 34, 2, 35, 2))
sketch3.addConstraint(Sketcher.Constraint("Coincident", 35, 1, 36, 1))
sketch3.addConstraint(Sketcher.Constraint("Coincident", 36, 2, 37, 1))
sketch3.addConstraint(Sketcher.Constraint("Coincident", 37, 2, 38, 1))
sketch3.addConstraint(Sketcher.Constraint("Coincident", 38, 2, 39, 1))
sketch3.addConstraint(Sketcher.Constraint("Coincident", 39, 2, 40, 1))
sketch3.addConstraint(Sketcher.Constraint("Coincident", 40, 2, 41, 1))
sketch3.addConstraint(Sketcher.Constraint("Coincident", 41, 2, 42, 1))
sketch3.addConstraint(Sketcher.Constraint("Coincident", 42, 2, 43, 1))
sketch3.addConstraint(Sketcher.Constraint("Coincident", 43, 2, 44, 1))
sketch3.addConstraint(Sketcher.Constraint("Coincident", 44, 2, 31, 1))
sketch3.addConstraint(Sketcher.Constraint("Coincident", 45, 2, 46, 1))
sketch3.addConstraint(Sketcher.Constraint("Coincident", 46, 2, 47, 2))
sketch3.addConstraint(Sketcher.Constraint("Coincident", 49, 1, 50, 1))
sketch3.addConstraint(Sketcher.Constraint("Coincident", 50, 2, 51, 1))
sketch3.addConstraint(Sketcher.Constraint("Coincident", 51, 2, 52, 1))
sketch3.addConstraint(Sketcher.Constraint("Coincident", 52, 2, 53, 2))
sketch3.addConstraint(Sketcher.Constraint("Coincident", 55, 1, 56, 1))
sketch3.addConstraint(Sketcher.Constraint("Coincident", 56, 2, 57, 1))
sketch3.addConstraint(Sketcher.Constraint("Coincident", 57, 2, 45, 1))
sketch3.addConstraint(Sketcher.Constraint("Coincident", 58, 2, 59, 1))
sketch3.addConstraint(Sketcher.Constraint("Coincident", 59, 2, 60, 1))
sketch3.addConstraint(Sketcher.Constraint("Coincident", 60, 2, 61, 1))
sketch3.addConstraint(Sketcher.Constraint("Coincident", 61, 2, 62, 1))
sketch3.addConstraint(Sketcher.Constraint("Coincident", 62, 2, 63, 1))
sketch3.addConstraint(Sketcher.Constraint("Coincident", 63, 2, 64, 1))
sketch3.addConstraint(Sketcher.Constraint("Coincident", 64, 2, 65, 1))
sketch3.addConstraint(Sketcher.Constraint("Coincident", 65, 2, 66, 1))
sketch3.addConstraint(Sketcher.Constraint("Coincident", 66, 2, 67, 1))
sketch3.addConstraint(Sketcher.Constraint("Coincident", 67, 2, 68, 1))
sketch3.addConstraint(Sketcher.Constraint("Coincident", 68, 2, 58, 1))
sketch3.addConstraint(Sketcher.Constraint("Vertical", 0))
sketch3.addConstraint(Sketcher.Constraint("Horizontal", 1))
sketch3.addConstraint(Sketcher.Constraint("Vertical", 8))
sketch3.addConstraint(Sketcher.Constraint("Horizontal", 9))
sketch3.addConstraint(Sketcher.Constraint("Vertical", 10))
sketch3.addConstraint(Sketcher.Constraint("Horizontal", 11))
sketch3.addConstraint(Sketcher.Constraint("Vertical", 12))
sketch3.addConstraint(Sketcher.Constraint("Horizontal", 13))
sketch3.addConstraint(Sketcher.Constraint("Horizontal", 19))
sketch3.addConstraint(Sketcher.Constraint("Vertical", 21))
sketch3.addConstraint(Sketcher.Constraint("Vertical", 23))
sketch3.addConstraint(Sketcher.Constraint("Vertical", 25))
sketch3.addConstraint(Sketcher.Constraint("Vertical", 27))
sketch3.addConstraint(Sketcher.Constraint("Horizontal", 31))
sketch3.addConstraint(Sketcher.Constraint("Vertical", 32))
sketch3.addConstraint(Sketcher.Constraint("Vertical", 36))
sketch3.addConstraint(Sketcher.Constraint("Horizontal", 37))
sketch3.addConstraint(Sketcher.Constraint("Vertical", 38))
sketch3.addConstraint(Sketcher.Constraint("Vertical", 41))
sketch3.addConstraint(Sketcher.Constraint("Horizontal", 43))
sketch3.addConstraint(Sketcher.Constraint("Vertical", 44))
sketch3.addConstraint(Sketcher.Constraint("Horizontal", 45))
sketch3.addConstraint(Sketcher.Constraint("Vertical", 46))
sketch3.addConstraint(Sketcher.Constraint("Horizontal", 50))
sketch3.addConstraint(Sketcher.Constraint("Vertical", 51))
sketch3.addConstraint(Sketcher.Constraint("Horizontal", 52))
sketch3.addConstraint(Sketcher.Constraint("Horizontal", 56))
sketch3.addConstraint(Sketcher.Constraint("Vertical", 57))
sketch3.addConstraint(Sketcher.Constraint("Vertical", 59))
sketch3.addConstraint(Sketcher.Constraint("Horizontal", 61))
sketch3.addConstraint(Sketcher.Constraint("Vertical", 62))
sketch3.addConstraint(Sketcher.Constraint("Horizontal", 63))
sketch3.addConstraint(Sketcher.Constraint("Vertical", 64))
sketch3.addConstraint(Sketcher.Constraint("Horizontal", 65))
sketch3.addConstraint(Sketcher.Constraint("Vertical", 67))
sketch3.addConstraint(Sketcher.Constraint("DistanceX", 31, 1, 31, 2, Q("40 mm")))
sketch3.addConstraint(Sketcher.Constraint("DistanceX", 37, 2, 37, 1, Q("40 mm")))
sketch3.addConstraint(Sketcher.Constraint("DistanceX", 63, 2, 63, 1, Q("40 mm")))
sketch3.addConstraint(Sketcher.Constraint("DistanceX", 27, 2, 31, 2, Q("40 mm")))
sketch3.addConstraint(Sketcher.Constraint("DistanceX", 57, 2, 58, 2, Q("40 mm")))
sketch3.addConstraint(Sketcher.Constraint("DistanceX", 9, 1, 9, 2, Q("21.492 mm")))
sketch3.addConstraint(Sketcher.Constraint("DistanceX", 11, 2, 11, 1, Q("6.089 mm")))
sketch3.addConstraint(Sketcher.Constraint("DistanceX", 50, 2, 50, 1, Q("1.447 mm")))
sketch3.addConstraint(Sketcher.Constraint("DistanceX", 56, 2, 56, 1, Q("5.697 mm")))
sketch3.addConstraint(Sketcher.Constraint("DistanceX", 61, 1, 61, 2, Q("15.554 mm")))
sketch3.addConstraint(Sketcher.Constraint("DistanceY", 12, 2, 12, 1, Q("2.502 mm")))
sketch3.addConstraint(Sketcher.Constraint("DistanceY", 67, 2, 67, 1, Q("12.871 mm")))
sketch3.addConstraint(Sketcher.Constraint("DistanceX", 7, 2, 0, 2, Q("25.29 mm")))
sketch3.addConstraint(Sketcher.Constraint("DistanceY", 7, 2, 12, 2, Q("4.25 mm")))
sketch3.addConstraint(Sketcher.Constraint("DistanceX", 0, 2, 16, 2, Q("4.22 mm")))
sketch3.addConstraint(Sketcher.Constraint("DistanceX", 0, 2, 20, 2, Q("14.71 mm")))
sketch3.addConstraint(Sketcher.Constraint("DistanceY", 36, 2, 21, 2, Q("27.34 mm")))
sketch3.addConstraint(Sketcher.Constraint("DistanceY", 33, 2, 39, 2, Q("8.44 mm")))
sketch3.addConstraint(Sketcher.Constraint("Distance", 20, Q("40.633 mm")))
sketch3.addConstraint(Sketcher.Constraint("Distance", 66, Q("17.892 mm")))
sketch3.addConstraint(Sketcher.Constraint("Distance", 68, Q("23.312 mm")))
sketch3.addConstraint(Sketcher.Constraint("DistanceX", 43, 2, 43, 1, Q("27.0083 mm")))
sketch3.addConstraint(Sketcher.Constraint("DistanceX", 65, 1, 65, 2, Q("17.1514 mm")))
sketch3.addConstraint(Sketcher.Constraint("DistanceY", 8, 2, 8, 1, Q("7.8373 mm")))
sketch3.addConstraint(Sketcher.Constraint("DistanceY", 21, 1, 21, 2, Q("18.0558 mm")))
sketch3.addConstraint(Sketcher.Constraint("DistanceY", 23, 2, 23, 1, Q("12.9012 mm")))
sketch3.addConstraint(Sketcher.Constraint("DistanceY", 25, 2, 25, 1, Q("4.4612 mm")))
sketch3.addConstraint(Sketcher.Constraint("DistanceY", 27, 2, 27, 1, Q("12.7807 mm")))
sketch3.addConstraint(Sketcher.Constraint("DistanceY", 32, 1, 32, 2, Q("16.2773 mm")))
sketch3.addConstraint(Sketcher.Constraint("DistanceY", 36, 1, 36, 2, Q("16.1266 mm")))
sketch3.addConstraint(Sketcher.Constraint("DistanceY", 38, 2, 38, 1, Q("10.9118 mm")))
sketch3.addConstraint(Sketcher.Constraint("DistanceY", 41, 2, 41, 1, Q("7.7166 mm")))
sketch3.addConstraint(Sketcher.Constraint("DistanceY", 44, 2, 44, 1, Q("10.9118 mm")))
sketch3.addConstraint(Sketcher.Constraint("DistanceY", 46, 1, 46, 2, Q("13.1725 mm")))
sketch3.addConstraint(Sketcher.Constraint("DistanceY", 59, 1, 59, 2, Q("11.6955 mm")))
sketch3.addConstraint(Sketcher.Constraint("DistanceY", 62, 1, 62, 2, Q("12.4793 mm")))
sketch3.addConstraint(Sketcher.Constraint("DistanceY", 64, 2, 64, 1, Q("12.4793 mm")))
sketch3.addConstraint(Sketcher.Constraint("DistanceY", -1, 1, 32, 2, Q("30.074 mm")))
sketch3.addConstraint(Sketcher.Constraint("DistanceY", -1, 1, 40, 2, Q("36.796 mm")))
sketch3.addConstraint(Sketcher.Constraint("DistanceY", 62, 2, -1, 1, Q("21.712 mm")))
sketch3.addConstraint(Sketcher.Constraint("DistanceY", 68, 2, -1, 1, Q("44.289 mm")))
sketch3.addConstraint(Sketcher.Constraint("DistanceY", 22, 2, 7, 2, Q("9.857 mm")))
sketch3.addConstraint(Sketcher.Constraint("DistanceX", 22, 2, 12, 2, Q("15.403 mm")))
sketch3.addConstraint(Sketcher.Constraint("DistanceX", 24, 2, 9, 2, Q("14.288 mm")))
sketch3.addConstraint(Sketcher.Constraint("DistanceY", 25, 2, 22, 2, Q("18.086 mm")))
sketch3.addConstraint(Sketcher.Constraint("DistanceY", 26, 2, 25, 2, Q("0.663 mm")))
sketch3.addConstraint(Sketcher.Constraint("DistanceX", 25, 2, 33, 2, Q("14.107 mm")))
sketch3.addConstraint(Sketcher.Constraint("DistanceY", 33, 2, 25, 2, Q("34.966 mm")))
sketch3.addConstraint(Sketcher.Constraint("DistanceX", 39, 2, 42, 2, Q("0.603 mm")))
sketch3.addConstraint(Sketcher.Constraint("DistanceY", 58, 2, 45, 2, Q("34.755 mm")))
sketch3.addConstraint(Sketcher.Constraint("DistanceX", 60, 2, 59, 2, Q("15.554 mm")))
sketch3.addConstraint(Sketcher.Constraint("DistanceX", 67, 2, 60, 2, Q("24.446 mm")))
sketch3.addConstraint(Sketcher.Constraint("Distance", 40, Q("26.7948 mm")))
pad2 = body.newObject("PartDesign::Pad", "Pad001")
pad2.Profile = sketch3
pad2.Length = 0.127

# Sketch on YZ plane
sketch4 = body.newObject("Sketcher::SketchObject", "Sketch003")
sketch4.AttachmentSupport = (doc.getObject("YZ_Plane"), [""])
sketch4.MapMode = "FlatFace"
sketch4.AttachmentOffset = App.Placement(App.Vector(0, 0, 3.175), App.Rotation())
sketch4.addGeometry(Part.Circle(App.Vector(11.6613, 103.7568, 0), App.Vector(0, 0, 1), 2.6), False)
sketch4.addGeometry(Part.Circle(App.Vector(-11.4897, 122.8364, 0), App.Vector(0, 0, 1), 2.6), False)
sketch4.addGeometry(Part.Circle(App.Vector(11.6613, -37.2568, 0), App.Vector(0, 0, 1), 2.6), False)
sketch4.addGeometry(Part.Circle(App.Vector(-11.4897, -56.3364, 0), App.Vector(0, 0, 1), 2.6), False)
sketch4.addConstraint(Sketcher.Constraint("Equal", 0, 1))
sketch4.addConstraint(Sketcher.Constraint("Equal", 1, 2))
sketch4.addConstraint(Sketcher.Constraint("Equal", 2, 3))
sketch4.addConstraint(Sketcher.Constraint("Vertical", 0, 3, 2, 3))
sketch4.addConstraint(Sketcher.Constraint("Vertical", 1, 3, 3, 3))
sketch4.addConstraint(Sketcher.Constraint("Diameter", 0, Q("5.2 mm")))
sketch4.addConstraint(Sketcher.Constraint("DistanceX", 1, 3, 0, 3, Q("23.151 mm")))
sketch4.addConstraint(Sketcher.Constraint("DistanceX", -1, 1, 0, 3, Q("11.6613 mm")))
sketch4.addConstraint(Sketcher.Constraint("DistanceY", -1, 1, 0, 3, Q("103.7568 mm")))
sketch4.addConstraint(Sketcher.Constraint("DistanceY", -1, 1, 1, 3, Q("122.8364 mm")))
sketch4.addConstraint(Sketcher.Constraint("DistanceY", 2, 3, -1, 1, Q("37.2568 mm")))
sketch4.addConstraint(Sketcher.Constraint("DistanceY", 3, 3, -1, 1, Q("56.3364 mm")))
pocket2 = body.newObject("PartDesign::Pocket", "Pocket001")
pocket2.Profile = sketch4
pocket2.Type = "ThroughAll"
doc.recompute()

fillet = body.newObject("PartDesign::Fillet", "Fillet")
fillet.Base = (pocket2, edges_at(pocket2, [
    (1.587, -47.837, -20),
    (1.587, -47.837, -73.333),
    (1.587, 16.877, -20),
    (1.587, -47.837, 86.5),
    (1.587, -47.837, 139.833),
    (1.587, 16.877, 86.5),
    (1.587, -47.837, 165.75),
    (1.587, 48.324, 86.5),
    (1.587, 48.324, -20),
    (1.587, -47.837, -99.25),
]))
fillet.Radius = 3.175

doc.recompute()
